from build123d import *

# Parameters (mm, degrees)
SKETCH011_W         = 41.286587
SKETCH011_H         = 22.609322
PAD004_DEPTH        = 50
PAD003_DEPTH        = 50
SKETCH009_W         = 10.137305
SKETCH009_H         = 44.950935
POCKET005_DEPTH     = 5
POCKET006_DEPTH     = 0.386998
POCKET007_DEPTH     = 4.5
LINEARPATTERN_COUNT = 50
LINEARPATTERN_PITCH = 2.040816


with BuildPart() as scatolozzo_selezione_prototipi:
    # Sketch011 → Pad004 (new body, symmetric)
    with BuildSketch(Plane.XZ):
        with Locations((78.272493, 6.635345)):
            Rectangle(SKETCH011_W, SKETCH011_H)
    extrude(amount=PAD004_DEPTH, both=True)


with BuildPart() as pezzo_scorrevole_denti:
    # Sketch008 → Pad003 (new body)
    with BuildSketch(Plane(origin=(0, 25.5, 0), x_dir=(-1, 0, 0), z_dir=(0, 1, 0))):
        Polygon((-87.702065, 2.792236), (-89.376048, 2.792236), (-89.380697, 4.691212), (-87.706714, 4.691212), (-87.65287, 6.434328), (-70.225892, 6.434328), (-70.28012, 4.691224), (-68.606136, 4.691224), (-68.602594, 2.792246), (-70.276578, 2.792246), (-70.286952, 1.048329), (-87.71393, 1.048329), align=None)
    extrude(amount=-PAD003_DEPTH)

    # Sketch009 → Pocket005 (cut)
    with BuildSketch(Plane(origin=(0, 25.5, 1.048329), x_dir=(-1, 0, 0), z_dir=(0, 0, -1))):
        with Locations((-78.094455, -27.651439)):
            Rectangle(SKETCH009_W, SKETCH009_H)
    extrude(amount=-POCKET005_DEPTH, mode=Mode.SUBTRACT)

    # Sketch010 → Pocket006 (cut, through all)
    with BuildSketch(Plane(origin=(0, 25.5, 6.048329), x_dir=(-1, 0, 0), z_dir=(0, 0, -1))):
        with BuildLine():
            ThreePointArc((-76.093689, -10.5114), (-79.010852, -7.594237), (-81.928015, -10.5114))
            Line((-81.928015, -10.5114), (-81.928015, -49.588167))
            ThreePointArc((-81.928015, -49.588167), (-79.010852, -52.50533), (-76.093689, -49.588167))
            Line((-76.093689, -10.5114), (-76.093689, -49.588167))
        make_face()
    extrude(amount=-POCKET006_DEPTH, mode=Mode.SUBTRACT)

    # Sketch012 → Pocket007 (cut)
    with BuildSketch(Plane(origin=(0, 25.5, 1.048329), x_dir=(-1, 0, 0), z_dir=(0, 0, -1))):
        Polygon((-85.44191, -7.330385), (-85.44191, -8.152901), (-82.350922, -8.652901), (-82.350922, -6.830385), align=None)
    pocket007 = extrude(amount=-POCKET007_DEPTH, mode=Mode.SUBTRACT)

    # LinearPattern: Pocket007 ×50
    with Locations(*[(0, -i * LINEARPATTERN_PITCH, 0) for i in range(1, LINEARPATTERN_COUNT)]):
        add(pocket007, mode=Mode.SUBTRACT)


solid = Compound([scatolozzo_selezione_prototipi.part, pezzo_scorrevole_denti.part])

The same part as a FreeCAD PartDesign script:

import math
import FreeCAD as App
import Part
import Sketcher
from FreeCAD import Vector
Q = App.Units.Quantity


def add_polygon(sketch, points):
    """Adds a closed chain of lines whose ends are joined by coincident constraints."""
    first, n = sketch.GeometryCount, len(points)
    for a, b in zip(points, points[1:] + points[:1]):
        sketch.addGeometry(Part.LineSegment(App.Vector(*a, 0), App.Vector(*b, 0)), False)
    for i in range(n):
        sketch.addConstraint(Sketcher.Constraint("Coincident", first + i, 2, first + (i + 1) % n, 1))

doc = App.newDocument("Part")
params = doc.addObject("Spreadsheet::Sheet", "Params")
for row, (alias, value) in enumerate([
    ("pad1_length", "100 mm"),
    ("pad2_length", "50 mm"),
    ("pocket1_length", "5 mm"),
    ("pocket3_length", "4.5 mm"),
    ("linearpattern_pitch", "2.040816 mm"),
], start=1):
    params.set(f"A{row}", alias)
    params.set(f"B{row}", "=" + value)
    params.setAlias(f"B{row}", alias)

body = doc.addObject("PartDesign::Body", "Body")

# Sketch on XZ plane
sketch1 = body.newObject("Sketcher::SketchObject", "Sketch")
sketch1.AttachmentSupport = (doc.getObject("XZ_Plane"), [""])
sketch1.MapMode = "FlatFace"
add_polygon(sketch1, [(58, 18), (58, -5), (99, -5), (99, 18)])  # lines 0-3
sketch1.addConstraint([
    Sketcher.Constraint("Vertical", 0),
    Sketcher.Constraint("Horizontal", 1),
    Sketcher.Constraint("Vertical", 2),
    Sketcher.Constraint("Horizontal", 3),
    Sketcher.Constraint("DistanceY", 0, 2, 0, 1, Q("22.609322 mm")),
    Sketcher.Constraint("DistanceX", -1, 1, 0, 2, Q("57.629199 mm")),
    Sketcher.Constraint("DistanceX", 1, 1, 1, 2, Q("41.286587 mm")),
    Sketcher.Constraint("DistanceY", 0, 2, -1, 1, Q("4.669316 mm")),
])
pad1 = body.newObject("PartDesign::Pad", "Pad")
pad1.Profile = sketch1
pad1.setExpression("Length", "Params.pad1_length")
pad1.Midplane = True
body2 = doc.addObject("PartDesign::Body", "Body001")

# Sketch on XZ plane
sketch2 = body2.newObject("Sketcher::SketchObject", "Sketch001")
sketch2.AttachmentSupport = (doc.getObject("XZ_Plane001"), [""])
sketch2.MapMode = "FlatFace"
sketch2.AttachmentOffset = App.Placement(Vector(0, 0, -25.5), App.Rotation())
add_polygon(sketch2, [(89.376048, 2.792236), (87.702065, 2.792236), (87.71393, 1.048329), (70.286952, 1.048329), (70.276578, 2.792246), (68.602594, 2.792246), (68.606136, 4.691224), (70.28012, 4.691224), (70.225892, 6.434328), (87.65287, 6.434328), (87.706714, 4.691212), (89.380697, 4.691212)])  # lines 0-11
sketch2.addConstraint([
    Sketcher.Constraint("Horizontal", 0),
    Sketcher.Constraint("Horizontal", 2),
    Sketcher.Constraint("Horizontal", 4),
    Sketcher.Constraint("Horizontal", 6),
    Sketcher.Constraint("Horizontal", 8),
    Sketcher.Constraint("Horizontal", 10),
    Sketcher.Constraint("Equal", 0, 4),
    Sketcher.Constraint("Equal", 4, 6),
    Sketcher.Constraint("Equal", 2, 8),
    Sketcher.Constraint("Equal", 6, 10),
    Sketcher.Constraint("Equal", 1, 3),
    Sketcher.Constraint("Equal", 3, 7),
    Sketcher.Constraint("Equal", 7, 9),
    Sketcher.Constraint("Equal", 5, 11),
    Sketcher.Constraint("DistanceY", 2, 2, 7, 2, Q("5.385999 mm")),
    Sketcher.Constraint("DistanceX", 2, 2, 2, 1, Q("17.426978 mm")),
    Sketcher.Constraint("DistanceX", 4, 2, 7, 2, Q("1.623298 mm")),
    Sketcher.Constraint("Distance", 5, Q("1.898981 mm")),
    Sketcher.Constraint("DistanceX", 0, 2, 0, 1, Q("1.673983 mm")),
    Sketcher.Constraint("DistanceX", -1, 1, 1, 2, Q("87.71393 mm")),
    Sketcher.Constraint("DistanceY", -1, 1, 1, 2, Q("1.048329 mm")),
    Sketcher.Constraint("DistanceX", -1, 1, 3, 2, Q("70.276578 mm")),
    Sketcher.Constraint("DistanceX", -1, 1, 6, 2, Q("70.28012 mm")),
    Sketcher.Constraint("DistanceX", 4, 2, 0, 2, Q("19.099471 mm")),
])
pad2 = body2.newObject("PartDesign::Pad", "Pad001")
pad2.Profile = sketch2
pad2.setExpression("Length", "Params.pad2_length")

# Sketch on XY plane
sketch3 = body2.newObject("Sketcher::SketchObject", "Sketch002")
sketch3.AttachmentSupport = (doc.getObject("XY_Plane001"), [""])
sketch3.MapMode = "FlatFace"
sketch3.AttachmentOffset = App.Placement(Vector(0, 0, 1.048329), App.Rotation())
add_polygon(sketch3, [(83, 20), (83, -25), (73, -25), (73, 20)])  # lines 0-3
sketch3.addConstraint([
    Sketcher.Constraint("Vertical", 0),
    Sketcher.Constraint("Horizontal", 1),
    Sketcher.Constraint("Vertical", 2),
    Sketcher.Constraint("Horizontal", 3),
    Sketcher.Constraint("DistanceX", 1, 2, 1, 1, Q("10.137305 mm")),
    Sketcher.Constraint("DistanceY", 0, 2, 0, 1, Q("44.950935 mm")),
    Sketcher.Constraint("DistanceY", -1, 1, 2, 2, Q("20.324029 mm")),
    Sketcher.Constraint("DistanceX", -1, 1, 0, 2, Q("83.163107 mm")),
])
pocket1 = body2.newObject("PartDesign::Pocket", "Pocket")
pocket1.Profile = sketch3
pocket1.setExpression("Length", "Params.pocket1_length")
pocket1.Reversed = True

# Sketch on XY plane
sketch4 = body2.newObject("Sketcher::SketchObject", "Sketch003")
sketch4.AttachmentSupport = (doc.getObject("XY_Plane001"), [""])
sketch4.MapMode = "FlatFace"
sketch4.AttachmentOffset = App.Placement(Vector(0, 0, 6.048329), App.Rotation())
sketch4.addGeometry([
    Part.ArcOfCircle(Part.Circle(Vector(79, 15, 0), Vector(0, 0, 1), 2.9), math.radians(0), math.radians(180)),
    Part.LineSegment(Vector(81.9, 15, 0), Vector(81.9, -24.1, 0)),
    Part.ArcOfCircle(Part.Circle(Vector(79, -24.1, 0), Vector(0, 0, 1), 2.9), math.radians(180), math.radians(360)),
    Part.LineSegment(Vector(76.1, -24.1, 0), Vector(76.1, 15, 0)),
], False)
sketch4.addConstraint([
    Sketcher.Constraint("Tangent", 0, 1, 1, 1),
    Sketcher.Constraint("Tangent", 1, 2, 2, 2),
    Sketcher.Constraint("Tangent", 2, 1, 3, 1),
    Sketcher.Constraint("Tangent", 3, 2, 0, 2),
    Sketcher.Constraint("Vertical", 1),
    Sketcher.Constraint("Vertical", 3),
    Sketcher.Constraint("Radius", 0, Q("2.917163 mm")),
    Sketcher.Constraint("DistanceY", -1, 1, 0, 3, Q("14.9886 mm")),
    Sketcher.Constraint("DistanceY", 1, 2, 1, 1, Q("39.076767 mm")),
    Sketcher.Constraint("DistanceX", -1, 1, 0, 3, Q("79.010852 mm")),
])
pocket2 = body2.newObject("PartDesign::Pocket", "Pocket001")
pocket2.Profile = sketch4
pocket2.Type = "ThroughAll"
pocket2.Reversed = True

# Sketch on XY plane
sketch5 = body2.newObject("Sketcher::SketchObject", "Sketch004")
sketch5.AttachmentSupport = (doc.getObject("XY_Plane001"), [""])
sketch5.MapMode = "FlatFace"
sketch5.AttachmentOffset = App.Placement(Vector(0, 0, 1.048329), App.Rotation())
add_polygon(sketch5, [(85.4, 18.2), (85.4, 17.3), (82.4, 16.8), (82.4, 18.7)])  # lines 0-3
sketch5.addConstraint([
    Sketcher.Constraint("Vertical", 0),
    Sketcher.Constraint("Vertical", 2),
    Sketcher.Constraint("Equal", 1, 3),
    Sketcher.Constraint("DistanceY", 1, 2, 0, 2, Q("0.5 mm")),
    Sketcher.Constraint("DistanceY", -1, 1, 0, 2, Q("17.347099 mm")),
    Sketcher.Constraint("DistanceY", 0, 2, 0, 1, Q("0.822516 mm")),
    Sketcher.Constraint("DistanceX", -1, 1, 0, 2, Q("85.44191 mm")),
    Sketcher.Constraint("DistanceX", -1, 1, 1, 2, Q("82.350922 mm")),
])
pocket3 = body2.newObject("PartDesign::Pocket", "Pocket002")
pocket3.Profile = sketch5
pocket3.setExpression("Length", "Params.pocket3_length")
pocket3.Reversed = True
doc.recompute()

linearpattern = body2.newObject("PartDesign::LinearPattern", "LinearPattern")
linearpattern.Originals = [pocket3]
linearpattern.Direction = (doc.getObject("Y_Axis001"), [""])
linearpattern.Mode = "offset"
linearpattern.setExpression("Offset", "Params.linearpattern_pitch")
linearpattern.Occurrences = 50
linearpattern.Reversed = True
body2.Tip = linearpattern

doc.recompute()
